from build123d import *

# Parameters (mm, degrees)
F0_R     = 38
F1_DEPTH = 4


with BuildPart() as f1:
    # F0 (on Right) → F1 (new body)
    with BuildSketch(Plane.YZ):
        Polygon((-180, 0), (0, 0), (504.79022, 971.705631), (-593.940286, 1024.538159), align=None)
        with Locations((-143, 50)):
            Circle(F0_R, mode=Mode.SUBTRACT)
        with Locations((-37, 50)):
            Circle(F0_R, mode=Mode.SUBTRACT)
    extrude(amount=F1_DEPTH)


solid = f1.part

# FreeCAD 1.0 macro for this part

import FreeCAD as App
import Part
import Sketcher
from FreeCAD import Vector
Q = App.Units.Quantity


def add_polygon(sketch, points):
    """Adds a closed chain of lines whose ends are joined by coincident constraints."""
    first, n = sketch.GeometryCount, len(points)
    for a, b in zip(points, points[1:] + points[:1]):
        sketch.addGeometry(Part.LineSegment(App.Vector(*a, 0), App.Vector(*b, 0)), False)
    for i in range(n):
        sketch.addConstraint(Sketcher.Constraint("Coincident", first + i, 2, first + (i + 1) % n, 1))

doc = App.newDocument("Part")
params = doc.addObject("Spreadsheet::Sheet", "Params")
for row, (alias, value) in enumerate([
    ("sketch1_diameter", "76 mm"),
    ("sketch1_width", "180 mm"),
    ("sketch1_length", "1095 mm"),
    ("sketch1_length2", "1100 mm"),
    ("sketch1_length3", "1105 mm"),
    ("pad1_length", "4 mm"),
], start=1):
    params.set(f"A{row}", alias)
    params.set(f"B{row}", "=" + value)
    params.setAlias(f"B{row}", alias)

body = doc.addObject("PartDesign::Body", "Body")

# Sketch on YZ plane
sketch1 = body.newObject("Sketcher::SketchObject", "Sketch")
sketch1.AttachmentSupport = (doc.getObject("YZ_Plane"), [""])
sketch1.MapMode = "FlatFace"
add_polygon(sketch1, [(-180, 0), (0, 0), (505, 972), (-594, 1025)])  # lines 0-3
sketch1.addGeometry(Part.Circle(Vector(-143, 50, 0), Vector(0, 0, 1), 38), False)  # 4
sketch1.addGeometry(Part.Circle(Vector(-37, 50, 0), Vector(0, 0, 1), 38), False)  # 5
sketch1.addConstraint([
    Sketcher.Constraint("Horizontal", 0),
    Sketcher.Constraint("Coincident", 0, 2, -1, 1),
    Sketcher.Constraint("Equal", 4, 5),
    Sketcher.Constraint("Horizontal", 4, 3, 5, 3),
    Sketcher.Constraint("Diameter", 4, 76.0),
    Sketcher.Constraint("DistanceX", 0, 1, 0, 2, 180.0),
    Sketcher.Constraint("Angle", 3, Q("-68 deg")),
    Sketcher.Constraint("Distance", 1, 1095.0),
    Sketcher.Constraint("Distance", 2, 1100.0),
    Sketcher.Constraint("Distance", 3, 1105.0),
    Sketcher.Constraint("DistanceX", 4, 3, -1, 1, 143.0),
    Sketcher.Constraint("DistanceY", -1, 1, 4, 3, 50.0),
    Sketcher.Constraint("DistanceX", 5, 3, -1, 1, 37.0),
])
sketch1.setExpression("Constraints[8]", "Params.sketch1_diameter")
sketch1.setExpression("Constraints[9]", "Params.sketch1_width")
sketch1.setExpression("Constraints[11]", "Params.sketch1_length")
sketch1.setExpression("Constraints[12]", "Params.sketch1_length2")
sketch1.setExpression("Constraints[13]", "Params.sketch1_length3")
pad1 = body.newObject("PartDesign::Pad", "Pad")
pad1.Profile = sketch1
pad1.setExpression("Length", "Params.pad1_length")

doc.recompute()
